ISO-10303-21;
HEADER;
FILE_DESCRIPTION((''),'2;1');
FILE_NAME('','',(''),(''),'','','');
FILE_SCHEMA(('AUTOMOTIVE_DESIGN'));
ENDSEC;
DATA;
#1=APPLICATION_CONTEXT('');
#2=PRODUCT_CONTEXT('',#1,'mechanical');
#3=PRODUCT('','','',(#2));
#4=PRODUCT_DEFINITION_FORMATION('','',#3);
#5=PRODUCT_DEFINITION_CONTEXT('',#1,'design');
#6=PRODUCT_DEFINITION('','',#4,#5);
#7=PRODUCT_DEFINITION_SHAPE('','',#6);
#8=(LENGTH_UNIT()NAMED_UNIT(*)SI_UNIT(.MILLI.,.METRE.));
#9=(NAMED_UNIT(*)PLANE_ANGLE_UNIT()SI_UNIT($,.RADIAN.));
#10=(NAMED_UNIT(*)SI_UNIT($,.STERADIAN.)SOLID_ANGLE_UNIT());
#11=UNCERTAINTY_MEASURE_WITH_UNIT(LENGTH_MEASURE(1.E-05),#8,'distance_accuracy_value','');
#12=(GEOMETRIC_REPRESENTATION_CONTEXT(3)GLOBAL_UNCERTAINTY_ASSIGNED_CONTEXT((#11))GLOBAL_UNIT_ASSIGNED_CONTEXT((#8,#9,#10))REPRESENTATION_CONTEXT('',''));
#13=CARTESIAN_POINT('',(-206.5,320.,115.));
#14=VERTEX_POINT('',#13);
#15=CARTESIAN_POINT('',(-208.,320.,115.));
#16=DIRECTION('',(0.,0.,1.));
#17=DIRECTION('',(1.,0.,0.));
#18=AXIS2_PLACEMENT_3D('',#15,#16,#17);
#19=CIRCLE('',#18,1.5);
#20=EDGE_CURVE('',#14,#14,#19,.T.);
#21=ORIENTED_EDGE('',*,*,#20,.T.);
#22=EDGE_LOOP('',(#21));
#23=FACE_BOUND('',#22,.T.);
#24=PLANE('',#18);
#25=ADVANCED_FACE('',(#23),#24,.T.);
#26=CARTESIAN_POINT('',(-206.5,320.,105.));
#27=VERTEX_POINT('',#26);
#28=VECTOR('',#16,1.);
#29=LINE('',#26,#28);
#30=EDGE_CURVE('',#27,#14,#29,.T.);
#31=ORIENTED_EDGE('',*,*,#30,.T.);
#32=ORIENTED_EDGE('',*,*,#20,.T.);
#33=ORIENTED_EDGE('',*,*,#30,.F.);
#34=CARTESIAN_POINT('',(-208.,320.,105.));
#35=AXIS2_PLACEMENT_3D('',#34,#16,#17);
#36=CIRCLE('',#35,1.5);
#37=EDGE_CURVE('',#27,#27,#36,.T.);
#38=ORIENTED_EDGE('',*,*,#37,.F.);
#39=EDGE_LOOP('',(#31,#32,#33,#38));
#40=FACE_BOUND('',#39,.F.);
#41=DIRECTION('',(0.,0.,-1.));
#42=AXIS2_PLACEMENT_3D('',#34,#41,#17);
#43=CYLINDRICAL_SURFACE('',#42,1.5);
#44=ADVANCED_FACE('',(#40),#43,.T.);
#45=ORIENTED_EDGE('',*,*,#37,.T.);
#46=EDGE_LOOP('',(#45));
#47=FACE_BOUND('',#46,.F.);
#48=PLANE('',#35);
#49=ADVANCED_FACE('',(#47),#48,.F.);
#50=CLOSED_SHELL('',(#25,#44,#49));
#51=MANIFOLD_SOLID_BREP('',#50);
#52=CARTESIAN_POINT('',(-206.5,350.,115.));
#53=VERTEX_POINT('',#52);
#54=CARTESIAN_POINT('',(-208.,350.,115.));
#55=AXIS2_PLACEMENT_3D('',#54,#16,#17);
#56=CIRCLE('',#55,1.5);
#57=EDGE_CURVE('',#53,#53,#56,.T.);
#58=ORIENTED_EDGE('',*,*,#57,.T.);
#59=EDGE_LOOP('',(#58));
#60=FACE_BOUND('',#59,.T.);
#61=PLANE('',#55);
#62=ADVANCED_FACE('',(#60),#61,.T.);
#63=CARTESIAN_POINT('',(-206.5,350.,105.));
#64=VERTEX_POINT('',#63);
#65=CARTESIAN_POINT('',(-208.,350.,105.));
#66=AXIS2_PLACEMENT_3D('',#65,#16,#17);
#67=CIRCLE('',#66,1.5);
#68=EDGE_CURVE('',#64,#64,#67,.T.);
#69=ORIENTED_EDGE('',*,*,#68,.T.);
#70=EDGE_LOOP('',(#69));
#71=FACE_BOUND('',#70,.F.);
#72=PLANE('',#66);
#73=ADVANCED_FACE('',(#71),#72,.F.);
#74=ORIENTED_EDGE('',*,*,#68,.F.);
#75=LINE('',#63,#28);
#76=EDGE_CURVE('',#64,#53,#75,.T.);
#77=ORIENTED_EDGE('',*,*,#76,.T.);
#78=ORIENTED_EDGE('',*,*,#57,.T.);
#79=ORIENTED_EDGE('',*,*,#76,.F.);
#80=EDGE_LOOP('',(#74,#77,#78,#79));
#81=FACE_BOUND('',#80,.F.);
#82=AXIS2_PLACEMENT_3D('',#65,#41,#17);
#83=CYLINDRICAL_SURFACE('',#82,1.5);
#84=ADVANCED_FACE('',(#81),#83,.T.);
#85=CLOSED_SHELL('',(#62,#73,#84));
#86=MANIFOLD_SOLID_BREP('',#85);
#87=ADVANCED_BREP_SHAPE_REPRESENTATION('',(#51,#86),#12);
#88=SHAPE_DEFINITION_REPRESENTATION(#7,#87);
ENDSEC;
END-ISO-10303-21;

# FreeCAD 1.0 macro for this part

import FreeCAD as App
import Part
import Sketcher
Q = App.Units.Quantity

doc = App.newDocument("Part")
params = doc.addObject("Spreadsheet::Sheet", "Params")
for row, (alias, value) in enumerate([
    ("sketch1_diameter", "3 mm"),
    ("pad1_length", "10 mm"),
    ("sketch2_diameter", "3 mm"),
    ("pad2_length", "10 mm"),
], start=1):
    params.set(f"A{row}", alias)
    params.set(f"B{row}", "=" + value)
    params.setAlias(f"B{row}", alias)

body = doc.addObject("PartDesign::Body", "Body")

# Sketch on XY plane
sketch1 = body.newObject("Sketcher::SketchObject", "Sketch")
sketch1.AttachmentSupport = (doc.getObject("XY_Plane"), [""])
sketch1.MapMode = "FlatFace"
sketch1.AttachmentOffset = App.Placement(App.Vector(0, 0, 105), App.Rotation())
sketch1.addGeometry(Part.Circle(App.Vector(-208, 320, 0), App.Vector(0, 0, 1), 1.5), False)
sketch1.addConstraint([
    Sketcher.Constraint("Diameter", 0, Q("3 mm")),
    Sketcher.Constraint("DistanceX", 0, 3, -1, 1, Q("208 mm")),
    Sketcher.Constraint("DistanceY", -1, 1, 0, 3, Q("320 mm")),
])
sketch1.setExpression("Constraints[0]", "Params.sketch1_diameter")
pad1 = body.newObject("PartDesign::Pad", "Pad")
pad1.Profile = sketch1
pad1.setExpression("Length", "Params.pad1_length")
body2 = doc.addObject("PartDesign::Body", "Body001")
body2.AllowCompound = True

# Sketch on XY plane
sketch2 = body2.newObject("Sketcher::SketchObject", "Sketch001")
sketch2.AttachmentSupport = (doc.getObject("XY_Plane001"), [""])
sketch2.MapMode = "FlatFace"
sketch2.AttachmentOffset = App.Placement(App.Vector(0, 0, 105), App.Rotation())
sketch2.addGeometry(Part.Circle(App.Vector(-208, 350, 0), App.Vector(0, 0, 1), 1.5), False)
sketch2.addConstraint([
    Sketcher.Constraint("Diameter", 0, Q("3 mm")),
    Sketcher.Constraint("DistanceX", 0, 3, -1, 1, Q("208 mm")),
    Sketcher.Constraint("DistanceY", -1, 1, 0, 3, Q("350 mm")),
])
sketch2.setExpression("Constraints[0]", "Params.sketch2_diameter")
pad2 = body2.newObject("PartDesign::Pad", "Pad001")
pad2.Profile = sketch2
pad2.setExpression("Length", "Params.pad2_length")
doc.recompute()

boolean = body2.newObject("PartDesign::Boolean", "Boolean")
boolean.Type = "Fuse"
boolean.addObjects([body])

doc.recompute()
